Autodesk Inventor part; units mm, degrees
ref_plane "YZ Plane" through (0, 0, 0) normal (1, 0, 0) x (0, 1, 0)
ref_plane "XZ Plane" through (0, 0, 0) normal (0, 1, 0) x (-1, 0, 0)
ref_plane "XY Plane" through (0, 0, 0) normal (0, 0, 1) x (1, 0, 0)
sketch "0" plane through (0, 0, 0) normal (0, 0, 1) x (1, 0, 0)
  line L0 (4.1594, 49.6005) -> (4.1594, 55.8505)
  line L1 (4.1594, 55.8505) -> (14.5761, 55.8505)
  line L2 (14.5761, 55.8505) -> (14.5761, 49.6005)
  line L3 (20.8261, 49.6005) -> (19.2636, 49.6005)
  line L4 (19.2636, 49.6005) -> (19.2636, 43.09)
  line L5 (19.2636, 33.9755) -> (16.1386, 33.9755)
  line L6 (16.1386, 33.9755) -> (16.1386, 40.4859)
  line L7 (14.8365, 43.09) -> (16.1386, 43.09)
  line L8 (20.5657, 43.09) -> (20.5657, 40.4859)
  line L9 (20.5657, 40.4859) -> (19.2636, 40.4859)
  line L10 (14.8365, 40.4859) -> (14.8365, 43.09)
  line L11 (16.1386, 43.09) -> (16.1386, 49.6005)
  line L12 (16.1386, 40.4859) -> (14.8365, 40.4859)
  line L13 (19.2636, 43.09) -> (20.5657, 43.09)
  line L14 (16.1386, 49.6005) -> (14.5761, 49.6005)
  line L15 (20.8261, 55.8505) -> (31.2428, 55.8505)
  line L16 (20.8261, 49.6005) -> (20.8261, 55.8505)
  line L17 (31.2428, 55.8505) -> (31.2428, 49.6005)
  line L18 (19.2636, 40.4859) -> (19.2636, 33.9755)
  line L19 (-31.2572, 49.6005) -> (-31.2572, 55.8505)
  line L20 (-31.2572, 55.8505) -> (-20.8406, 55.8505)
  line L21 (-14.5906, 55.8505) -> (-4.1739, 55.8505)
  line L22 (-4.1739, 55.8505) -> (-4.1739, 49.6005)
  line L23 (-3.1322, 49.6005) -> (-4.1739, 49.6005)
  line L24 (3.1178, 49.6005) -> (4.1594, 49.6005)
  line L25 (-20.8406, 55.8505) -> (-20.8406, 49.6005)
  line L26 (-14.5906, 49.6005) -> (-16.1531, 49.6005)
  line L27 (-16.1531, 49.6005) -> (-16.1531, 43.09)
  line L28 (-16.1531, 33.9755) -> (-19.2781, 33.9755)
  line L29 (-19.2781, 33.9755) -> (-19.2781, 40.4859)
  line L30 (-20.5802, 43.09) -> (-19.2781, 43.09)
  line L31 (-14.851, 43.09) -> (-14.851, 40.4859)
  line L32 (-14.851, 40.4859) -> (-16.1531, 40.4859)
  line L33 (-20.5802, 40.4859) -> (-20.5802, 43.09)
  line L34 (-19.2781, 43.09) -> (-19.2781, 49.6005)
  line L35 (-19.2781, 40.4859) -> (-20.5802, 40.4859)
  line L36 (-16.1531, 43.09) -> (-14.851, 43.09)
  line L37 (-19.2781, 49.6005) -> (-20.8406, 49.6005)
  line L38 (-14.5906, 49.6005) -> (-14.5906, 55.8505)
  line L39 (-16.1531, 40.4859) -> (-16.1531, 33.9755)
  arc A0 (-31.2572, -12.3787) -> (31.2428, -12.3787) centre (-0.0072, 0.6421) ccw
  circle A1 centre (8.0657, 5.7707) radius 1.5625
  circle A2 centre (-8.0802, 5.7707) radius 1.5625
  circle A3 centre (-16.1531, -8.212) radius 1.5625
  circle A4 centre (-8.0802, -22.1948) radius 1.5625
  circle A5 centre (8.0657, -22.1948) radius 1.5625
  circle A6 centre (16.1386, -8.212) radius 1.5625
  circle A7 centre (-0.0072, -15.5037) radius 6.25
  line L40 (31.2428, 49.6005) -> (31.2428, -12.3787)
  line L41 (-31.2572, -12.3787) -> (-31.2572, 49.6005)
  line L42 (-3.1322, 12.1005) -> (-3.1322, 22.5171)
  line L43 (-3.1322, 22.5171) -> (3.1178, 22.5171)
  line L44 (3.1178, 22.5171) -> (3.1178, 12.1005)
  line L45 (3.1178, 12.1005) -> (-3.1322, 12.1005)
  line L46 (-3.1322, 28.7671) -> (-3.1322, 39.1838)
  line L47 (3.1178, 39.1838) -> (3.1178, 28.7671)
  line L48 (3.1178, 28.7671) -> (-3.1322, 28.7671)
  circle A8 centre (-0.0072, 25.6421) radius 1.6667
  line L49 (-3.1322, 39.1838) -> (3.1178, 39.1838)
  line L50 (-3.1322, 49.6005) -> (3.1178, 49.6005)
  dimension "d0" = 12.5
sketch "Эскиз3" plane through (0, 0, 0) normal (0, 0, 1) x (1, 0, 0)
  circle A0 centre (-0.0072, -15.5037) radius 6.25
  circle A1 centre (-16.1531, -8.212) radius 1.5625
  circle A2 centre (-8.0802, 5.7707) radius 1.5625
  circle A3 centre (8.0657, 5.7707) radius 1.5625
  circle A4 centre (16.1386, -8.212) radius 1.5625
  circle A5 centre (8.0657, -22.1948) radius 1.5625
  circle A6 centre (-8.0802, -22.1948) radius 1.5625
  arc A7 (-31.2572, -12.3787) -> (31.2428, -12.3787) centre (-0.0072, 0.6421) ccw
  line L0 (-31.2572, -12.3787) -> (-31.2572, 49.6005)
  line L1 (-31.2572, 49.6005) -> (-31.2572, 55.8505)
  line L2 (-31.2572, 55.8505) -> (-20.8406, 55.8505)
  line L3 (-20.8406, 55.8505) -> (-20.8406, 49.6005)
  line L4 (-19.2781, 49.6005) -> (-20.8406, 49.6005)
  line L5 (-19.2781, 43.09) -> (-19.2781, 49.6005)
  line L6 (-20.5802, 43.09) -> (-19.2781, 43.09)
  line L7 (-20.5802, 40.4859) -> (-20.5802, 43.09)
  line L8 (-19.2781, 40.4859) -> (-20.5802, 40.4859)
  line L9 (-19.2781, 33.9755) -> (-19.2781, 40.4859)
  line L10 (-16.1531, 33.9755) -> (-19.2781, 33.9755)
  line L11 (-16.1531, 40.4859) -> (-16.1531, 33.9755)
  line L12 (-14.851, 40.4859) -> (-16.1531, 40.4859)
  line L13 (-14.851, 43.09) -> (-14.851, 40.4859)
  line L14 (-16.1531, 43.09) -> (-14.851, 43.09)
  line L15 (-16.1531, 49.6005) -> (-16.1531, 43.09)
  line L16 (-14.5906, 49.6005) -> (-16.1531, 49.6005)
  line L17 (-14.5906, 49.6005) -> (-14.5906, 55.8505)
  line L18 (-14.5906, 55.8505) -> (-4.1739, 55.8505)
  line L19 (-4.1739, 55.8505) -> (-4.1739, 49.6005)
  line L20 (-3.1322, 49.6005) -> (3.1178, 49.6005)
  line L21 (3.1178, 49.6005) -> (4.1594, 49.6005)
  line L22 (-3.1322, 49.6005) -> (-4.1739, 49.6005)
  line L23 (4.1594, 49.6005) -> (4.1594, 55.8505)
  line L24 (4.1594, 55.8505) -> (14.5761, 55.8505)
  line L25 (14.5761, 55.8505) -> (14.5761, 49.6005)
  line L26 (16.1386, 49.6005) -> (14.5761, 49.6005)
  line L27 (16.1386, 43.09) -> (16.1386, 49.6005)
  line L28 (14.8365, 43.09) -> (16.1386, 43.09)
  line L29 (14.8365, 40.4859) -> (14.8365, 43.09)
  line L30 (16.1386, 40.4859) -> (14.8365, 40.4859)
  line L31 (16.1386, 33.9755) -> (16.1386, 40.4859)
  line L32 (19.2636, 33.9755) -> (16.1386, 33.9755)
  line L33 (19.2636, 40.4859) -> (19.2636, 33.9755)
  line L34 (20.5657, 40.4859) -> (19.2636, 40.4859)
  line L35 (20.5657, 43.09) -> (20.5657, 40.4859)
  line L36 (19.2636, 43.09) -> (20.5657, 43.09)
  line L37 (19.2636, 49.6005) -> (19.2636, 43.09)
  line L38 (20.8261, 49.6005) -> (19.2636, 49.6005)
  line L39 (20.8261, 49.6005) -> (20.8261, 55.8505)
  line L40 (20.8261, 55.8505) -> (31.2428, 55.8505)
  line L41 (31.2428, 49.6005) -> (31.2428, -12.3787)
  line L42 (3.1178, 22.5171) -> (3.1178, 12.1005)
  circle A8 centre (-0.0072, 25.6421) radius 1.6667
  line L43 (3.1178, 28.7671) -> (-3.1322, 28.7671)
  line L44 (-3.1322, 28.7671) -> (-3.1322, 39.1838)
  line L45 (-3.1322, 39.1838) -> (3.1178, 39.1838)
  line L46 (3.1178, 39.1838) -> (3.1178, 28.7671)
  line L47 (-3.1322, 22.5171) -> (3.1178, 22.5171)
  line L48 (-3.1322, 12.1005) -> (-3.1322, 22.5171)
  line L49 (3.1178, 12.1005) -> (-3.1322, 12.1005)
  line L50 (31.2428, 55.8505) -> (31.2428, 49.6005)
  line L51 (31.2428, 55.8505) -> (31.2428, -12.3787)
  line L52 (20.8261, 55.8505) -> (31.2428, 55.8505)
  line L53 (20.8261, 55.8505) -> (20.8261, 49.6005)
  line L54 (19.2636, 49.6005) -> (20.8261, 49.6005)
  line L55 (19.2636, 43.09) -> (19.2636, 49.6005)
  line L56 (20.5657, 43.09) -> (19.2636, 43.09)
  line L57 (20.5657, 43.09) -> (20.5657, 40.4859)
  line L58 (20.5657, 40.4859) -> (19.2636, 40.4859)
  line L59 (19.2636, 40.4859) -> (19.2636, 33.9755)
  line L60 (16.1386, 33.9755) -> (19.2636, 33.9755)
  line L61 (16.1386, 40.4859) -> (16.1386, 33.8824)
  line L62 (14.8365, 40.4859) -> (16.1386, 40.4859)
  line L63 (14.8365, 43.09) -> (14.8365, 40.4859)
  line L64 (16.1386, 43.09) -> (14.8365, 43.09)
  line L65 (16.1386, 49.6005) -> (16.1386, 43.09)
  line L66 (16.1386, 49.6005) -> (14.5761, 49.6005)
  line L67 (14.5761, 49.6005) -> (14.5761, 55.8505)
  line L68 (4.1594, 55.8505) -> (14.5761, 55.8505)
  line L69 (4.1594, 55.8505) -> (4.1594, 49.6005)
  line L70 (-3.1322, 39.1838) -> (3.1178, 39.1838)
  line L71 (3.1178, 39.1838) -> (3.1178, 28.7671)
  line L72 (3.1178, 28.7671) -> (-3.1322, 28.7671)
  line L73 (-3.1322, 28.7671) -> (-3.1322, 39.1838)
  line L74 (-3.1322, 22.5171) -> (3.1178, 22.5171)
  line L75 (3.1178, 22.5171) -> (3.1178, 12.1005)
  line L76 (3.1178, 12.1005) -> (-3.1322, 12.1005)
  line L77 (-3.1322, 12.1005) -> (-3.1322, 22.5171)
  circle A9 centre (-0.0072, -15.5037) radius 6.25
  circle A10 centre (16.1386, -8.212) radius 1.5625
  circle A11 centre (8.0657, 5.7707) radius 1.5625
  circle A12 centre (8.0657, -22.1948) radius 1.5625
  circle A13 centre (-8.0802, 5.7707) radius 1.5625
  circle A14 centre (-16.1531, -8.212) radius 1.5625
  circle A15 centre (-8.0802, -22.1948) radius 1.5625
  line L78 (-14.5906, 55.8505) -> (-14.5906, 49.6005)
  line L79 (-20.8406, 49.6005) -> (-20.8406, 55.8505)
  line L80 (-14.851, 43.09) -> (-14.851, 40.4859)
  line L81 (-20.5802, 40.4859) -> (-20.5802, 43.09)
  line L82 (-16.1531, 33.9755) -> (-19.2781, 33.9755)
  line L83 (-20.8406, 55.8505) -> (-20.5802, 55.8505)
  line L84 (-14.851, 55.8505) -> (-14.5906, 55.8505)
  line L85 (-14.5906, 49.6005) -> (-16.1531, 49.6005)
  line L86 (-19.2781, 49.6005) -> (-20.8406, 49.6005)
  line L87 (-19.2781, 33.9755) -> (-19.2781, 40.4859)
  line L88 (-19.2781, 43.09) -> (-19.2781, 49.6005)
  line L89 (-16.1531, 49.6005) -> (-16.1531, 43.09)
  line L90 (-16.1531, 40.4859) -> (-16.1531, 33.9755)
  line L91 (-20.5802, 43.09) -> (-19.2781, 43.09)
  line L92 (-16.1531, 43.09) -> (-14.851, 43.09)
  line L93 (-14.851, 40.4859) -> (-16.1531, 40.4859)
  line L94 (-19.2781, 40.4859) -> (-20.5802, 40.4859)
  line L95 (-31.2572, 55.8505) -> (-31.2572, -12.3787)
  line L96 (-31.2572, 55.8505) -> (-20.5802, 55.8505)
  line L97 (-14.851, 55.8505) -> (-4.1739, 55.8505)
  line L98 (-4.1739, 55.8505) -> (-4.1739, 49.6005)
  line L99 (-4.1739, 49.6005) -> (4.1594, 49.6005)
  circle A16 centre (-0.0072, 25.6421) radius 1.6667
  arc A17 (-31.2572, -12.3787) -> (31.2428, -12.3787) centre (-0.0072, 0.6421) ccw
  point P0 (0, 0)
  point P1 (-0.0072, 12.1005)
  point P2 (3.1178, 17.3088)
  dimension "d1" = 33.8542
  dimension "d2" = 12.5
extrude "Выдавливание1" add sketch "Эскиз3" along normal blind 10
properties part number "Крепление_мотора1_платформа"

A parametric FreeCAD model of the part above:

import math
import FreeCAD as App
import Part
import Sketcher

doc = App.newDocument("Part")
params = doc.addObject("Spreadsheet::Sheet", "Params")
for row, (alias, value) in enumerate([
    ("sketch1_diameter", "12.5 mm"),
    ("sketch1_width", "6.25 mm"),
    ("pad1_length", "10 mm"),
], start=1):
    params.set(f"A{row}", alias)
    params.set(f"B{row}", "=" + value)
    params.setAlias(f"B{row}", alias)

body = doc.addObject("PartDesign::Body", "Body")

sketch1 = doc.addObject("Sketcher::SketchObject", "Sketch")
body.addObject(sketch1)
sketch1.AttachmentSupport = (doc.XY_Plane, [""])
sketch1.MapMode = "FlatFace"
sketch1.addGeometry([
    Part.LineSegment(App.Vector(-31.2572, 55.8505, 0), App.Vector(-31.2572, -12.3787, 0)),
    Part.ArcOfCircle(Part.Circle(App.Vector(-0.0072, 0.6421, 0), App.Vector(0, 0, 1), 33.854154), math.radians(-157.380187), math.radians(-22.619813)),
    Part.LineSegment(App.Vector(31.2428, -12.3787, 0), App.Vector(31.2428, 55.8505, 0)),
    Part.LineSegment(App.Vector(31.2428, 55.8505, 0), App.Vector(20.8261, 55.8505, 0)),
    Part.LineSegment(App.Vector(20.8261, 55.8505, 0), App.Vector(20.8261, 49.6005, 0)),
    Part.LineSegment(App.Vector(20.8261, 49.6005, 0), App.Vector(19.2636, 49.6005, 0)),
    Part.LineSegment(App.Vector(19.2636, 49.6005, 0), App.Vector(19.2636, 43.09, 0)),
    Part.LineSegment(App.Vector(19.2636, 43.09, 0), App.Vector(20.5657, 43.09, 0)),
    Part.LineSegment(App.Vector(20.5657, 43.09, 0), App.Vector(20.5657, 40.4859, 0)),
    Part.LineSegment(App.Vector(20.5657, 40.4859, 0), App.Vector(19.2636, 40.4859, 0)),
    Part.LineSegment(App.Vector(19.2636, 40.4859, 0), App.Vector(19.2636, 33.9755, 0)),
    Part.LineSegment(App.Vector(19.2636, 33.9755, 0), App.Vector(16.1386, 33.9755, 0)),
    Part.LineSegment(App.Vector(16.1386, 33.9755, 0), App.Vector(16.1386, 40.4859, 0)),
    Part.LineSegment(App.Vector(16.1386, 40.4859, 0), App.Vector(14.8365, 40.4859, 0)),
    Part.LineSegment(App.Vector(14.8365, 40.4859, 0), App.Vector(14.8365, 43.09, 0)),
    Part.LineSegment(App.Vector(14.8365, 43.09, 0), App.Vector(16.1386, 43.09, 0)),
    Part.LineSegment(App.Vector(16.1386, 43.09, 0), App.Vector(16.1386, 49.6005, 0)),
    Part.LineSegment(App.Vector(16.1386, 49.6005, 0), App.Vector(14.5761, 49.6005, 0)),
    Part.LineSegment(App.Vector(14.5761, 49.6005, 0), App.Vector(14.5761, 55.8505, 0)),
    Part.LineSegment(App.Vector(14.5761, 55.8505, 0), App.Vector(4.1594, 55.8505, 0)),
    Part.LineSegment(App.Vector(4.1594, 55.8505, 0), App.Vector(4.1594, 49.6005, 0)),
    Part.LineSegment(App.Vector(4.1594, 49.6005, 0), App.Vector(-4.1739, 49.6005, 0)),
    Part.LineSegment(App.Vector(-4.1739, 49.6005, 0), App.Vector(-4.1739, 55.8505, 0)),
    Part.LineSegment(App.Vector(-4.1739, 55.8505, 0), App.Vector(-14.5906, 55.8505, 0)),
    Part.LineSegment(App.Vector(-14.5906, 55.8505, 0), App.Vector(-14.5906, 49.6005, 0)),
    Part.LineSegment(App.Vector(-14.5906, 49.6005, 0), App.Vector(-16.1531, 49.6005, 0)),
    Part.LineSegment(App.Vector(-16.1531, 49.6005, 0), App.Vector(-16.1531, 43.09, 0)),
    Part.LineSegment(App.Vector(-16.1531, 43.09, 0), App.Vector(-14.851, 43.09, 0)),
    Part.LineSegment(App.Vector(-14.851, 43.09, 0), App.Vector(-14.851, 40.4859, 0)),
    Part.LineSegment(App.Vector(-14.851, 40.4859, 0), App.Vector(-16.1531, 40.4859, 0)),
    Part.LineSegment(App.Vector(-16.1531, 40.4859, 0), App.Vector(-16.1531, 33.9755, 0)),
    Part.LineSegment(App.Vector(-16.1531, 33.9755, 0), App.Vector(-19.2781, 33.9755, 0)),
    Part.LineSegment(App.Vector(-19.2781, 33.9755, 0), App.Vector(-19.2781, 40.4859, 0)),
    Part.LineSegment(App.Vector(-19.2781, 40.4859, 0), App.Vector(-20.5802, 40.4859, 0)),
    Part.LineSegment(App.Vector(-20.5802, 40.4859, 0), App.Vector(-20.5802, 43.09, 0)),
    Part.LineSegment(App.Vector(-20.5802, 43.09, 0), App.Vector(-19.2781, 43.09, 0)),
    Part.LineSegment(App.Vector(-19.2781, 43.09, 0), App.Vector(-19.2781, 49.6005, 0)),
    Part.LineSegment(App.Vector(-19.2781, 49.6005, 0), App.Vector(-20.8406, 49.6005, 0)),
    Part.LineSegment(App.Vector(-20.8406, 49.6005, 0), App.Vector(-20.8406, 55.8505, 0)),
    Part.LineSegment(App.Vector(-20.8406, 55.8505, 0), App.Vector(-31.2572, 55.8505, 0)),
    Part.Circle(App.Vector(-8.0802, -22.1948, 0), App.Vector(0, 0, 1), 1.5625),
    Part.Circle(App.Vector(-16.1531, -8.212, 0), App.Vector(0, 0, 1), 1.5625),
    Part.Circle(App.Vector(-8.0802, 5.7707, 0), App.Vector(0, 0, 1), 1.5625),
    Part.Circle(App.Vector(8.0657, -22.1948, 0), App.Vector(0, 0, 1), 1.5625),
    Part.Circle(App.Vector(-0.0072, -15.5037, 0), App.Vector(0, 0, 1), 6.25),
    Part.Circle(App.Vector(8.0657, 5.7707, 0), App.Vector(0, 0, 1), 1.5625),
    Part.Circle(App.Vector(16.1386, -8.212, 0), App.Vector(0, 0, 1), 1.5625),
    Part.LineSegment(App.Vector(-3.1322, 22.5171, 0), App.Vector(3.1178, 22.5171, 0)),
    Part.LineSegment(App.Vector(3.1178, 22.5171, 0), App.Vector(3.1178, 12.1005, 0)),
    Part.LineSegment(App.Vector(3.1178, 12.1005, 0), App.Vector(-3.1322, 12.1005, 0)),
    Part.LineSegment(App.Vector(-3.1322, 12.1005, 0), App.Vector(-3.1322, 22.5171, 0)),
    Part.Circle(App.Vector(-0.0072, 25.6421, 0), App.Vector(0, 0, 1), 1.6667),
    Part.LineSegment(App.Vector(3.1178, 39.1838, 0), App.Vector(3.1178, 28.7671, 0)),
    Part.LineSegment(App.Vector(3.1178, 28.7671, 0), App.Vector(-3.1322, 28.7671, 0)),
    Part.LineSegment(App.Vector(-3.1322, 28.7671, 0), App.Vector(-3.1322, 39.1838, 0)),
    Part.LineSegment(App.Vector(-3.1322, 39.1838, 0), App.Vector(3.1178, 39.1838, 0)),
], False)
sketch1.addConstraint([
    Sketcher.Constraint("Coincident", 0, 2, 1, 1),
    Sketcher.Constraint("Coincident", 1, 2, 2, 1),
    Sketcher.Constraint("Coincident", 2, 2, 3, 1),
    Sketcher.Constraint("Coincident", 3, 2, 4, 1),
    Sketcher.Constraint("Coincident", 4, 2, 5, 1),
    Sketcher.Constraint("Coincident", 5, 2, 6, 1),
    Sketcher.Constraint("Coincident", 6, 2, 7, 1),
    Sketcher.Constraint("Coincident", 7, 2, 8, 1),
    Sketcher.Constraint("Coincident", 8, 2, 9, 1),
    Sketcher.Constraint("Coincident", 9, 2, 10, 1),
    Sketcher.Constraint("Coincident", 10, 2, 11, 1),
    Sketcher.Constraint("Coincident", 11, 2, 12, 1),
    Sketcher.Constraint("Coincident", 12, 2, 13, 1),
    Sketcher.Constraint("Coincident", 13, 2, 14, 1),
    Sketcher.Constraint("Coincident", 14, 2, 15, 1),
    Sketcher.Constraint("Coincident", 15, 2, 16, 1),
    Sketcher.Constraint("Coincident", 16, 2, 17, 1),
    Sketcher.Constraint("Coincident", 17, 2, 18, 1),
    Sketcher.Constraint("Coincident", 18, 2, 19, 1),
    Sketcher.Constraint("Coincident", 19, 2, 20, 1),
    Sketcher.Constraint("Coincident", 20, 2, 21, 1),
    Sketcher.Constraint("Coincident", 21, 2, 22, 1),
    Sketcher.Constraint("Coincident", 22, 2, 23, 1),
    Sketcher.Constraint("Coincident", 23, 2, 24, 1),
    Sketcher.Constraint("Coincident", 24, 2, 25, 1),
    Sketcher.Constraint("Coincident", 25, 2, 26, 1),
    Sketcher.Constraint("Coincident", 26, 2, 27, 1),
    Sketcher.Constraint("Coincident", 27, 2, 28, 1),
    Sketcher.Constraint("Coincident", 28, 2, 29, 1),
    Sketcher.Constraint("Coincident", 29, 2, 30, 1),
    Sketcher.Constraint("Coincident", 30, 2, 31, 1),
    Sketcher.Constraint("Coincident", 31, 2, 32, 1),
    Sketcher.Constraint("Coincident", 32, 2, 33, 1),
    Sketcher.Constraint("Coincident", 33, 2, 34, 1),
    Sketcher.Constraint("Coincident", 34, 2, 35, 1),
    Sketcher.Constraint("Coincident", 35, 2, 36, 1),
    Sketcher.Constraint("Coincident", 36, 2, 37, 1),
    Sketcher.Constraint("Coincident", 37, 2, 38, 1),
    Sketcher.Constraint("Coincident", 38, 2, 39, 1),
    Sketcher.Constraint("Coincident", 39, 2, 0, 1),
    Sketcher.Constraint("Coincident", 47, 2, 48, 1),
    Sketcher.Constraint("Coincident", 48, 2, 49, 1),
    Sketcher.Constraint("Coincident", 49, 2, 50, 1),
    Sketcher.Constraint("Coincident", 50, 2, 47, 1),
    Sketcher.Constraint("Coincident", 52, 2, 53, 1),
    Sketcher.Constraint("Coincident", 53, 2, 54, 1),
    Sketcher.Constraint("Coincident", 54, 2, 55, 1),
    Sketcher.Constraint("Coincident", 55, 2, 52, 1),
    Sketcher.Constraint("Vertical", 0),
    Sketcher.Constraint("Vertical", 2),
    Sketcher.Constraint("Horizontal", 3),
    Sketcher.Constraint("Vertical", 4),
    Sketcher.Constraint("Horizontal", 5),
    Sketcher.Constraint("Vertical", 6),
    Sketcher.Constraint("Horizontal", 7),
    Sketcher.Constraint("Vertical", 8),
    Sketcher.Constraint("Horizontal", 9),
    Sketcher.Constraint("Vertical", 10),
    Sketcher.Constraint("Horizontal", 11),
    Sketcher.Constraint("Vertical", 12),
    Sketcher.Constraint("Horizontal", 13),
    Sketcher.Constraint("Vertical", 14),
    Sketcher.Constraint("Horizontal", 15),
    Sketcher.Constraint("Vertical", 16),
    Sketcher.Constraint("Horizontal", 17),
    Sketcher.Constraint("Vertical", 18),
    Sketcher.Constraint("Horizontal", 19),
    Sketcher.Constraint("Vertical", 20),
    Sketcher.Constraint("Horizontal", 21),
    Sketcher.Constraint("Vertical", 22),
    Sketcher.Constraint("Horizontal", 23),
    Sketcher.Constraint("Vertical", 24),
    Sketcher.Constraint("Horizontal", 25),
    Sketcher.Constraint("Vertical", 26),
    Sketcher.Constraint("Horizontal", 27),
    Sketcher.Constraint("Vertical", 28),
    Sketcher.Constraint("Horizontal", 29),
    Sketcher.Constraint("Vertical", 30),
    Sketcher.Constraint("Horizontal", 31),
    Sketcher.Constraint("Vertical", 32),
    Sketcher.Constraint("Horizontal", 33),
    Sketcher.Constraint("Vertical", 34),
    Sketcher.Constraint("Horizontal", 35),
    Sketcher.Constraint("Vertical", 36),
    Sketcher.Constraint("Horizontal", 37),
    Sketcher.Constraint("Vertical", 38),
    Sketcher.Constraint("Horizontal", 39),
    Sketcher.Constraint("Horizontal", 47),
    Sketcher.Constraint("Vertical", 48),
    Sketcher.Constraint("Horizontal", 49),
    Sketcher.Constraint("Vertical", 50),
    Sketcher.Constraint("Vertical", 52),
    Sketcher.Constraint("Horizontal", 53),
    Sketcher.Constraint("Vertical", 54),
    Sketcher.Constraint("Horizontal", 55),
    Sketcher.Constraint("Equal", 40, 41),
    Sketcher.Constraint("Equal", 41, 42),
    Sketcher.Constraint("Equal", 42, 43),
    Sketcher.Constraint("Equal", 43, 45),
    Sketcher.Constraint("Equal", 45, 46),
    Sketcher.Constraint("Horizontal", 40, 3, 43, 3),
    Sketcher.Constraint("Horizontal", 42, 3, 45, 3),
    Sketcher.Constraint("Horizontal", 41, 3, 46, 3),
    Sketcher.Constraint("Horizontal", 0, 2, 1, 2),
    Sketcher.Constraint("Horizontal", 9, 2, 12, 2),
    Sketcher.Constraint("Horizontal", 7, 2, 14, 2),
    Sketcher.Constraint("Horizontal", 5, 2, 16, 2),
    Sketcher.Constraint("Horizontal", 3, 2, 18, 2),
    Sketcher.Constraint("Horizontal", 17, 2, 20, 2),
    Sketcher.Constraint("Horizontal", 19, 2, 22, 2),
    Sketcher.Constraint("Horizontal", 21, 2, 24, 2),
    Sketcher.Constraint("Horizontal", 15, 2, 26, 2),
    Sketcher.Constraint("Horizontal", 13, 2, 28, 2),
    Sketcher.Constraint("Horizontal", 11, 2, 30, 2),
    Sketcher.Constraint("Horizontal", 29, 2, 32, 2),
    Sketcher.Constraint("Horizontal", 27, 2, 34, 2),
    Sketcher.Constraint("Horizontal", 25, 2, 36, 2),
    Sketcher.Constraint("Horizontal", 23, 2, 38, 2),
    Sketcher.Constraint("Vertical", 40, 3, 42, 3),
    Sketcher.Constraint("Vertical", 1, 3, 44, 3),
    Sketcher.Constraint("Vertical", 43, 3, 45, 3),
    Sketcher.Constraint("Vertical", 44, 3, 51, 3),
    Sketcher.Constraint("Vertical", 6, 2, 9, 2),
    Sketcher.Constraint("Vertical", 46, 3, 11, 2),
    Sketcher.Constraint("Vertical", 12, 2, 15, 2),
    Sketcher.Constraint("Vertical", 41, 3, 25, 2),
    Sketcher.Constraint("Vertical", 26, 2, 29, 2),
    Sketcher.Constraint("Vertical", 32, 2, 35, 2),
    Sketcher.Constraint("Vertical", 48, 2, 52, 2),
    Sketcher.Constraint("Vertical", 50, 2, 53, 2),
    Sketcher.Constraint("Equal", 9, 13),
    Sketcher.Constraint("Equal", 5, 17),
    Sketcher.Constraint("Equal", 3, 19),
    Sketcher.Constraint("Equal", 19, 23),
    Sketcher.Constraint("Equal", 17, 25),
    Sketcher.Constraint("Equal", 15, 27),
    Sketcher.Constraint("Equal", 11, 31),
    Sketcher.Constraint("Equal", 29, 33),
    Sketcher.Constraint("Equal", 25, 37),
    Sketcher.Constraint("Equal", 23, 39),
    Sketcher.Constraint("Equal", 55, 4),
    Sketcher.Constraint("Equal", 6, 10),
    Sketcher.Constraint("Equal", 39, 48),
    Sketcher.Constraint("Equal", 50, 52),
    Sketcher.Constraint("Diameter", 44, 12.5),
    Sketcher.Constraint("Radius", 1, 33.8542),
    Sketcher.Constraint("Diameter", 40, 3.125),
    Sketcher.Constraint("DistanceY", 1, 3, 51, 3, 25.0),
    Sketcher.Constraint("DistanceY", 46, 3, 51, 3, 33.854),
    Sketcher.Constraint("Diameter", 51, 3.3334),
    Sketcher.Constraint("DistanceX", 47, 1, 47, 2, 6.25),
    Sketcher.Constraint("DistanceX", 7, 1, 7, 2, 1.302),
    Sketcher.Constraint("DistanceX", 11, 2, 11, 1, 3.125),
    Sketcher.Constraint("DistanceY", 8, 2, 8, 1, 2.604),
    Sketcher.Constraint("DistanceY", -1, 1, 6, 2, 43.09),
    Sketcher.Constraint("DistanceX", 0, 2, 44, 3, 31.25),
    Sketcher.Constraint("DistanceX", 17, 2, 4, 2, 6.25),
    Sketcher.Constraint("DistanceX", 21, 2, 17, 2, 18.75),
    Sketcher.Constraint("DistanceY", 47, 2, 52, 2, 6.25),
    Sketcher.Constraint("DistanceY", 0, 2, 0, 1, 68.2292),
    Sketcher.Constraint("DistanceY", 6, 2, 6, 1, 6.5105),
    Sketcher.Constraint("DistanceX", 41, 3, -1, 1, 16.153),
    Sketcher.Constraint("DistanceY", -1, 1, 47, 2, 22.517),
    Sketcher.Constraint("DistanceX", 40, 3, 1, 3, 8.073),
    Sketcher.Constraint("DistanceY", 40, 3, 1, 3, 22.837),
    Sketcher.Constraint("DistanceX", 40, 3, 43, 3, 16.146),
    Sketcher.Constraint("DistanceY", 43, 3, 44, 3, 6.691),
    Sketcher.Constraint("DistanceX", 51, 3, 47, 2, 3.125),
    Sketcher.Constraint("DistanceY", -1, 1, 42, 3, 5.7707),
])
sketch1.setExpression("Constraints[144]", "Params.sketch1_diameter")
sketch1.setExpression("Constraints[150]", "Params.sketch1_width")
pad1 = doc.addObject("PartDesign::Pad", "Pad")
body.addObject(pad1)
pad1.Profile = sketch1
pad1.setExpression("Length", "Params.pad1_length")

doc.recompute()
